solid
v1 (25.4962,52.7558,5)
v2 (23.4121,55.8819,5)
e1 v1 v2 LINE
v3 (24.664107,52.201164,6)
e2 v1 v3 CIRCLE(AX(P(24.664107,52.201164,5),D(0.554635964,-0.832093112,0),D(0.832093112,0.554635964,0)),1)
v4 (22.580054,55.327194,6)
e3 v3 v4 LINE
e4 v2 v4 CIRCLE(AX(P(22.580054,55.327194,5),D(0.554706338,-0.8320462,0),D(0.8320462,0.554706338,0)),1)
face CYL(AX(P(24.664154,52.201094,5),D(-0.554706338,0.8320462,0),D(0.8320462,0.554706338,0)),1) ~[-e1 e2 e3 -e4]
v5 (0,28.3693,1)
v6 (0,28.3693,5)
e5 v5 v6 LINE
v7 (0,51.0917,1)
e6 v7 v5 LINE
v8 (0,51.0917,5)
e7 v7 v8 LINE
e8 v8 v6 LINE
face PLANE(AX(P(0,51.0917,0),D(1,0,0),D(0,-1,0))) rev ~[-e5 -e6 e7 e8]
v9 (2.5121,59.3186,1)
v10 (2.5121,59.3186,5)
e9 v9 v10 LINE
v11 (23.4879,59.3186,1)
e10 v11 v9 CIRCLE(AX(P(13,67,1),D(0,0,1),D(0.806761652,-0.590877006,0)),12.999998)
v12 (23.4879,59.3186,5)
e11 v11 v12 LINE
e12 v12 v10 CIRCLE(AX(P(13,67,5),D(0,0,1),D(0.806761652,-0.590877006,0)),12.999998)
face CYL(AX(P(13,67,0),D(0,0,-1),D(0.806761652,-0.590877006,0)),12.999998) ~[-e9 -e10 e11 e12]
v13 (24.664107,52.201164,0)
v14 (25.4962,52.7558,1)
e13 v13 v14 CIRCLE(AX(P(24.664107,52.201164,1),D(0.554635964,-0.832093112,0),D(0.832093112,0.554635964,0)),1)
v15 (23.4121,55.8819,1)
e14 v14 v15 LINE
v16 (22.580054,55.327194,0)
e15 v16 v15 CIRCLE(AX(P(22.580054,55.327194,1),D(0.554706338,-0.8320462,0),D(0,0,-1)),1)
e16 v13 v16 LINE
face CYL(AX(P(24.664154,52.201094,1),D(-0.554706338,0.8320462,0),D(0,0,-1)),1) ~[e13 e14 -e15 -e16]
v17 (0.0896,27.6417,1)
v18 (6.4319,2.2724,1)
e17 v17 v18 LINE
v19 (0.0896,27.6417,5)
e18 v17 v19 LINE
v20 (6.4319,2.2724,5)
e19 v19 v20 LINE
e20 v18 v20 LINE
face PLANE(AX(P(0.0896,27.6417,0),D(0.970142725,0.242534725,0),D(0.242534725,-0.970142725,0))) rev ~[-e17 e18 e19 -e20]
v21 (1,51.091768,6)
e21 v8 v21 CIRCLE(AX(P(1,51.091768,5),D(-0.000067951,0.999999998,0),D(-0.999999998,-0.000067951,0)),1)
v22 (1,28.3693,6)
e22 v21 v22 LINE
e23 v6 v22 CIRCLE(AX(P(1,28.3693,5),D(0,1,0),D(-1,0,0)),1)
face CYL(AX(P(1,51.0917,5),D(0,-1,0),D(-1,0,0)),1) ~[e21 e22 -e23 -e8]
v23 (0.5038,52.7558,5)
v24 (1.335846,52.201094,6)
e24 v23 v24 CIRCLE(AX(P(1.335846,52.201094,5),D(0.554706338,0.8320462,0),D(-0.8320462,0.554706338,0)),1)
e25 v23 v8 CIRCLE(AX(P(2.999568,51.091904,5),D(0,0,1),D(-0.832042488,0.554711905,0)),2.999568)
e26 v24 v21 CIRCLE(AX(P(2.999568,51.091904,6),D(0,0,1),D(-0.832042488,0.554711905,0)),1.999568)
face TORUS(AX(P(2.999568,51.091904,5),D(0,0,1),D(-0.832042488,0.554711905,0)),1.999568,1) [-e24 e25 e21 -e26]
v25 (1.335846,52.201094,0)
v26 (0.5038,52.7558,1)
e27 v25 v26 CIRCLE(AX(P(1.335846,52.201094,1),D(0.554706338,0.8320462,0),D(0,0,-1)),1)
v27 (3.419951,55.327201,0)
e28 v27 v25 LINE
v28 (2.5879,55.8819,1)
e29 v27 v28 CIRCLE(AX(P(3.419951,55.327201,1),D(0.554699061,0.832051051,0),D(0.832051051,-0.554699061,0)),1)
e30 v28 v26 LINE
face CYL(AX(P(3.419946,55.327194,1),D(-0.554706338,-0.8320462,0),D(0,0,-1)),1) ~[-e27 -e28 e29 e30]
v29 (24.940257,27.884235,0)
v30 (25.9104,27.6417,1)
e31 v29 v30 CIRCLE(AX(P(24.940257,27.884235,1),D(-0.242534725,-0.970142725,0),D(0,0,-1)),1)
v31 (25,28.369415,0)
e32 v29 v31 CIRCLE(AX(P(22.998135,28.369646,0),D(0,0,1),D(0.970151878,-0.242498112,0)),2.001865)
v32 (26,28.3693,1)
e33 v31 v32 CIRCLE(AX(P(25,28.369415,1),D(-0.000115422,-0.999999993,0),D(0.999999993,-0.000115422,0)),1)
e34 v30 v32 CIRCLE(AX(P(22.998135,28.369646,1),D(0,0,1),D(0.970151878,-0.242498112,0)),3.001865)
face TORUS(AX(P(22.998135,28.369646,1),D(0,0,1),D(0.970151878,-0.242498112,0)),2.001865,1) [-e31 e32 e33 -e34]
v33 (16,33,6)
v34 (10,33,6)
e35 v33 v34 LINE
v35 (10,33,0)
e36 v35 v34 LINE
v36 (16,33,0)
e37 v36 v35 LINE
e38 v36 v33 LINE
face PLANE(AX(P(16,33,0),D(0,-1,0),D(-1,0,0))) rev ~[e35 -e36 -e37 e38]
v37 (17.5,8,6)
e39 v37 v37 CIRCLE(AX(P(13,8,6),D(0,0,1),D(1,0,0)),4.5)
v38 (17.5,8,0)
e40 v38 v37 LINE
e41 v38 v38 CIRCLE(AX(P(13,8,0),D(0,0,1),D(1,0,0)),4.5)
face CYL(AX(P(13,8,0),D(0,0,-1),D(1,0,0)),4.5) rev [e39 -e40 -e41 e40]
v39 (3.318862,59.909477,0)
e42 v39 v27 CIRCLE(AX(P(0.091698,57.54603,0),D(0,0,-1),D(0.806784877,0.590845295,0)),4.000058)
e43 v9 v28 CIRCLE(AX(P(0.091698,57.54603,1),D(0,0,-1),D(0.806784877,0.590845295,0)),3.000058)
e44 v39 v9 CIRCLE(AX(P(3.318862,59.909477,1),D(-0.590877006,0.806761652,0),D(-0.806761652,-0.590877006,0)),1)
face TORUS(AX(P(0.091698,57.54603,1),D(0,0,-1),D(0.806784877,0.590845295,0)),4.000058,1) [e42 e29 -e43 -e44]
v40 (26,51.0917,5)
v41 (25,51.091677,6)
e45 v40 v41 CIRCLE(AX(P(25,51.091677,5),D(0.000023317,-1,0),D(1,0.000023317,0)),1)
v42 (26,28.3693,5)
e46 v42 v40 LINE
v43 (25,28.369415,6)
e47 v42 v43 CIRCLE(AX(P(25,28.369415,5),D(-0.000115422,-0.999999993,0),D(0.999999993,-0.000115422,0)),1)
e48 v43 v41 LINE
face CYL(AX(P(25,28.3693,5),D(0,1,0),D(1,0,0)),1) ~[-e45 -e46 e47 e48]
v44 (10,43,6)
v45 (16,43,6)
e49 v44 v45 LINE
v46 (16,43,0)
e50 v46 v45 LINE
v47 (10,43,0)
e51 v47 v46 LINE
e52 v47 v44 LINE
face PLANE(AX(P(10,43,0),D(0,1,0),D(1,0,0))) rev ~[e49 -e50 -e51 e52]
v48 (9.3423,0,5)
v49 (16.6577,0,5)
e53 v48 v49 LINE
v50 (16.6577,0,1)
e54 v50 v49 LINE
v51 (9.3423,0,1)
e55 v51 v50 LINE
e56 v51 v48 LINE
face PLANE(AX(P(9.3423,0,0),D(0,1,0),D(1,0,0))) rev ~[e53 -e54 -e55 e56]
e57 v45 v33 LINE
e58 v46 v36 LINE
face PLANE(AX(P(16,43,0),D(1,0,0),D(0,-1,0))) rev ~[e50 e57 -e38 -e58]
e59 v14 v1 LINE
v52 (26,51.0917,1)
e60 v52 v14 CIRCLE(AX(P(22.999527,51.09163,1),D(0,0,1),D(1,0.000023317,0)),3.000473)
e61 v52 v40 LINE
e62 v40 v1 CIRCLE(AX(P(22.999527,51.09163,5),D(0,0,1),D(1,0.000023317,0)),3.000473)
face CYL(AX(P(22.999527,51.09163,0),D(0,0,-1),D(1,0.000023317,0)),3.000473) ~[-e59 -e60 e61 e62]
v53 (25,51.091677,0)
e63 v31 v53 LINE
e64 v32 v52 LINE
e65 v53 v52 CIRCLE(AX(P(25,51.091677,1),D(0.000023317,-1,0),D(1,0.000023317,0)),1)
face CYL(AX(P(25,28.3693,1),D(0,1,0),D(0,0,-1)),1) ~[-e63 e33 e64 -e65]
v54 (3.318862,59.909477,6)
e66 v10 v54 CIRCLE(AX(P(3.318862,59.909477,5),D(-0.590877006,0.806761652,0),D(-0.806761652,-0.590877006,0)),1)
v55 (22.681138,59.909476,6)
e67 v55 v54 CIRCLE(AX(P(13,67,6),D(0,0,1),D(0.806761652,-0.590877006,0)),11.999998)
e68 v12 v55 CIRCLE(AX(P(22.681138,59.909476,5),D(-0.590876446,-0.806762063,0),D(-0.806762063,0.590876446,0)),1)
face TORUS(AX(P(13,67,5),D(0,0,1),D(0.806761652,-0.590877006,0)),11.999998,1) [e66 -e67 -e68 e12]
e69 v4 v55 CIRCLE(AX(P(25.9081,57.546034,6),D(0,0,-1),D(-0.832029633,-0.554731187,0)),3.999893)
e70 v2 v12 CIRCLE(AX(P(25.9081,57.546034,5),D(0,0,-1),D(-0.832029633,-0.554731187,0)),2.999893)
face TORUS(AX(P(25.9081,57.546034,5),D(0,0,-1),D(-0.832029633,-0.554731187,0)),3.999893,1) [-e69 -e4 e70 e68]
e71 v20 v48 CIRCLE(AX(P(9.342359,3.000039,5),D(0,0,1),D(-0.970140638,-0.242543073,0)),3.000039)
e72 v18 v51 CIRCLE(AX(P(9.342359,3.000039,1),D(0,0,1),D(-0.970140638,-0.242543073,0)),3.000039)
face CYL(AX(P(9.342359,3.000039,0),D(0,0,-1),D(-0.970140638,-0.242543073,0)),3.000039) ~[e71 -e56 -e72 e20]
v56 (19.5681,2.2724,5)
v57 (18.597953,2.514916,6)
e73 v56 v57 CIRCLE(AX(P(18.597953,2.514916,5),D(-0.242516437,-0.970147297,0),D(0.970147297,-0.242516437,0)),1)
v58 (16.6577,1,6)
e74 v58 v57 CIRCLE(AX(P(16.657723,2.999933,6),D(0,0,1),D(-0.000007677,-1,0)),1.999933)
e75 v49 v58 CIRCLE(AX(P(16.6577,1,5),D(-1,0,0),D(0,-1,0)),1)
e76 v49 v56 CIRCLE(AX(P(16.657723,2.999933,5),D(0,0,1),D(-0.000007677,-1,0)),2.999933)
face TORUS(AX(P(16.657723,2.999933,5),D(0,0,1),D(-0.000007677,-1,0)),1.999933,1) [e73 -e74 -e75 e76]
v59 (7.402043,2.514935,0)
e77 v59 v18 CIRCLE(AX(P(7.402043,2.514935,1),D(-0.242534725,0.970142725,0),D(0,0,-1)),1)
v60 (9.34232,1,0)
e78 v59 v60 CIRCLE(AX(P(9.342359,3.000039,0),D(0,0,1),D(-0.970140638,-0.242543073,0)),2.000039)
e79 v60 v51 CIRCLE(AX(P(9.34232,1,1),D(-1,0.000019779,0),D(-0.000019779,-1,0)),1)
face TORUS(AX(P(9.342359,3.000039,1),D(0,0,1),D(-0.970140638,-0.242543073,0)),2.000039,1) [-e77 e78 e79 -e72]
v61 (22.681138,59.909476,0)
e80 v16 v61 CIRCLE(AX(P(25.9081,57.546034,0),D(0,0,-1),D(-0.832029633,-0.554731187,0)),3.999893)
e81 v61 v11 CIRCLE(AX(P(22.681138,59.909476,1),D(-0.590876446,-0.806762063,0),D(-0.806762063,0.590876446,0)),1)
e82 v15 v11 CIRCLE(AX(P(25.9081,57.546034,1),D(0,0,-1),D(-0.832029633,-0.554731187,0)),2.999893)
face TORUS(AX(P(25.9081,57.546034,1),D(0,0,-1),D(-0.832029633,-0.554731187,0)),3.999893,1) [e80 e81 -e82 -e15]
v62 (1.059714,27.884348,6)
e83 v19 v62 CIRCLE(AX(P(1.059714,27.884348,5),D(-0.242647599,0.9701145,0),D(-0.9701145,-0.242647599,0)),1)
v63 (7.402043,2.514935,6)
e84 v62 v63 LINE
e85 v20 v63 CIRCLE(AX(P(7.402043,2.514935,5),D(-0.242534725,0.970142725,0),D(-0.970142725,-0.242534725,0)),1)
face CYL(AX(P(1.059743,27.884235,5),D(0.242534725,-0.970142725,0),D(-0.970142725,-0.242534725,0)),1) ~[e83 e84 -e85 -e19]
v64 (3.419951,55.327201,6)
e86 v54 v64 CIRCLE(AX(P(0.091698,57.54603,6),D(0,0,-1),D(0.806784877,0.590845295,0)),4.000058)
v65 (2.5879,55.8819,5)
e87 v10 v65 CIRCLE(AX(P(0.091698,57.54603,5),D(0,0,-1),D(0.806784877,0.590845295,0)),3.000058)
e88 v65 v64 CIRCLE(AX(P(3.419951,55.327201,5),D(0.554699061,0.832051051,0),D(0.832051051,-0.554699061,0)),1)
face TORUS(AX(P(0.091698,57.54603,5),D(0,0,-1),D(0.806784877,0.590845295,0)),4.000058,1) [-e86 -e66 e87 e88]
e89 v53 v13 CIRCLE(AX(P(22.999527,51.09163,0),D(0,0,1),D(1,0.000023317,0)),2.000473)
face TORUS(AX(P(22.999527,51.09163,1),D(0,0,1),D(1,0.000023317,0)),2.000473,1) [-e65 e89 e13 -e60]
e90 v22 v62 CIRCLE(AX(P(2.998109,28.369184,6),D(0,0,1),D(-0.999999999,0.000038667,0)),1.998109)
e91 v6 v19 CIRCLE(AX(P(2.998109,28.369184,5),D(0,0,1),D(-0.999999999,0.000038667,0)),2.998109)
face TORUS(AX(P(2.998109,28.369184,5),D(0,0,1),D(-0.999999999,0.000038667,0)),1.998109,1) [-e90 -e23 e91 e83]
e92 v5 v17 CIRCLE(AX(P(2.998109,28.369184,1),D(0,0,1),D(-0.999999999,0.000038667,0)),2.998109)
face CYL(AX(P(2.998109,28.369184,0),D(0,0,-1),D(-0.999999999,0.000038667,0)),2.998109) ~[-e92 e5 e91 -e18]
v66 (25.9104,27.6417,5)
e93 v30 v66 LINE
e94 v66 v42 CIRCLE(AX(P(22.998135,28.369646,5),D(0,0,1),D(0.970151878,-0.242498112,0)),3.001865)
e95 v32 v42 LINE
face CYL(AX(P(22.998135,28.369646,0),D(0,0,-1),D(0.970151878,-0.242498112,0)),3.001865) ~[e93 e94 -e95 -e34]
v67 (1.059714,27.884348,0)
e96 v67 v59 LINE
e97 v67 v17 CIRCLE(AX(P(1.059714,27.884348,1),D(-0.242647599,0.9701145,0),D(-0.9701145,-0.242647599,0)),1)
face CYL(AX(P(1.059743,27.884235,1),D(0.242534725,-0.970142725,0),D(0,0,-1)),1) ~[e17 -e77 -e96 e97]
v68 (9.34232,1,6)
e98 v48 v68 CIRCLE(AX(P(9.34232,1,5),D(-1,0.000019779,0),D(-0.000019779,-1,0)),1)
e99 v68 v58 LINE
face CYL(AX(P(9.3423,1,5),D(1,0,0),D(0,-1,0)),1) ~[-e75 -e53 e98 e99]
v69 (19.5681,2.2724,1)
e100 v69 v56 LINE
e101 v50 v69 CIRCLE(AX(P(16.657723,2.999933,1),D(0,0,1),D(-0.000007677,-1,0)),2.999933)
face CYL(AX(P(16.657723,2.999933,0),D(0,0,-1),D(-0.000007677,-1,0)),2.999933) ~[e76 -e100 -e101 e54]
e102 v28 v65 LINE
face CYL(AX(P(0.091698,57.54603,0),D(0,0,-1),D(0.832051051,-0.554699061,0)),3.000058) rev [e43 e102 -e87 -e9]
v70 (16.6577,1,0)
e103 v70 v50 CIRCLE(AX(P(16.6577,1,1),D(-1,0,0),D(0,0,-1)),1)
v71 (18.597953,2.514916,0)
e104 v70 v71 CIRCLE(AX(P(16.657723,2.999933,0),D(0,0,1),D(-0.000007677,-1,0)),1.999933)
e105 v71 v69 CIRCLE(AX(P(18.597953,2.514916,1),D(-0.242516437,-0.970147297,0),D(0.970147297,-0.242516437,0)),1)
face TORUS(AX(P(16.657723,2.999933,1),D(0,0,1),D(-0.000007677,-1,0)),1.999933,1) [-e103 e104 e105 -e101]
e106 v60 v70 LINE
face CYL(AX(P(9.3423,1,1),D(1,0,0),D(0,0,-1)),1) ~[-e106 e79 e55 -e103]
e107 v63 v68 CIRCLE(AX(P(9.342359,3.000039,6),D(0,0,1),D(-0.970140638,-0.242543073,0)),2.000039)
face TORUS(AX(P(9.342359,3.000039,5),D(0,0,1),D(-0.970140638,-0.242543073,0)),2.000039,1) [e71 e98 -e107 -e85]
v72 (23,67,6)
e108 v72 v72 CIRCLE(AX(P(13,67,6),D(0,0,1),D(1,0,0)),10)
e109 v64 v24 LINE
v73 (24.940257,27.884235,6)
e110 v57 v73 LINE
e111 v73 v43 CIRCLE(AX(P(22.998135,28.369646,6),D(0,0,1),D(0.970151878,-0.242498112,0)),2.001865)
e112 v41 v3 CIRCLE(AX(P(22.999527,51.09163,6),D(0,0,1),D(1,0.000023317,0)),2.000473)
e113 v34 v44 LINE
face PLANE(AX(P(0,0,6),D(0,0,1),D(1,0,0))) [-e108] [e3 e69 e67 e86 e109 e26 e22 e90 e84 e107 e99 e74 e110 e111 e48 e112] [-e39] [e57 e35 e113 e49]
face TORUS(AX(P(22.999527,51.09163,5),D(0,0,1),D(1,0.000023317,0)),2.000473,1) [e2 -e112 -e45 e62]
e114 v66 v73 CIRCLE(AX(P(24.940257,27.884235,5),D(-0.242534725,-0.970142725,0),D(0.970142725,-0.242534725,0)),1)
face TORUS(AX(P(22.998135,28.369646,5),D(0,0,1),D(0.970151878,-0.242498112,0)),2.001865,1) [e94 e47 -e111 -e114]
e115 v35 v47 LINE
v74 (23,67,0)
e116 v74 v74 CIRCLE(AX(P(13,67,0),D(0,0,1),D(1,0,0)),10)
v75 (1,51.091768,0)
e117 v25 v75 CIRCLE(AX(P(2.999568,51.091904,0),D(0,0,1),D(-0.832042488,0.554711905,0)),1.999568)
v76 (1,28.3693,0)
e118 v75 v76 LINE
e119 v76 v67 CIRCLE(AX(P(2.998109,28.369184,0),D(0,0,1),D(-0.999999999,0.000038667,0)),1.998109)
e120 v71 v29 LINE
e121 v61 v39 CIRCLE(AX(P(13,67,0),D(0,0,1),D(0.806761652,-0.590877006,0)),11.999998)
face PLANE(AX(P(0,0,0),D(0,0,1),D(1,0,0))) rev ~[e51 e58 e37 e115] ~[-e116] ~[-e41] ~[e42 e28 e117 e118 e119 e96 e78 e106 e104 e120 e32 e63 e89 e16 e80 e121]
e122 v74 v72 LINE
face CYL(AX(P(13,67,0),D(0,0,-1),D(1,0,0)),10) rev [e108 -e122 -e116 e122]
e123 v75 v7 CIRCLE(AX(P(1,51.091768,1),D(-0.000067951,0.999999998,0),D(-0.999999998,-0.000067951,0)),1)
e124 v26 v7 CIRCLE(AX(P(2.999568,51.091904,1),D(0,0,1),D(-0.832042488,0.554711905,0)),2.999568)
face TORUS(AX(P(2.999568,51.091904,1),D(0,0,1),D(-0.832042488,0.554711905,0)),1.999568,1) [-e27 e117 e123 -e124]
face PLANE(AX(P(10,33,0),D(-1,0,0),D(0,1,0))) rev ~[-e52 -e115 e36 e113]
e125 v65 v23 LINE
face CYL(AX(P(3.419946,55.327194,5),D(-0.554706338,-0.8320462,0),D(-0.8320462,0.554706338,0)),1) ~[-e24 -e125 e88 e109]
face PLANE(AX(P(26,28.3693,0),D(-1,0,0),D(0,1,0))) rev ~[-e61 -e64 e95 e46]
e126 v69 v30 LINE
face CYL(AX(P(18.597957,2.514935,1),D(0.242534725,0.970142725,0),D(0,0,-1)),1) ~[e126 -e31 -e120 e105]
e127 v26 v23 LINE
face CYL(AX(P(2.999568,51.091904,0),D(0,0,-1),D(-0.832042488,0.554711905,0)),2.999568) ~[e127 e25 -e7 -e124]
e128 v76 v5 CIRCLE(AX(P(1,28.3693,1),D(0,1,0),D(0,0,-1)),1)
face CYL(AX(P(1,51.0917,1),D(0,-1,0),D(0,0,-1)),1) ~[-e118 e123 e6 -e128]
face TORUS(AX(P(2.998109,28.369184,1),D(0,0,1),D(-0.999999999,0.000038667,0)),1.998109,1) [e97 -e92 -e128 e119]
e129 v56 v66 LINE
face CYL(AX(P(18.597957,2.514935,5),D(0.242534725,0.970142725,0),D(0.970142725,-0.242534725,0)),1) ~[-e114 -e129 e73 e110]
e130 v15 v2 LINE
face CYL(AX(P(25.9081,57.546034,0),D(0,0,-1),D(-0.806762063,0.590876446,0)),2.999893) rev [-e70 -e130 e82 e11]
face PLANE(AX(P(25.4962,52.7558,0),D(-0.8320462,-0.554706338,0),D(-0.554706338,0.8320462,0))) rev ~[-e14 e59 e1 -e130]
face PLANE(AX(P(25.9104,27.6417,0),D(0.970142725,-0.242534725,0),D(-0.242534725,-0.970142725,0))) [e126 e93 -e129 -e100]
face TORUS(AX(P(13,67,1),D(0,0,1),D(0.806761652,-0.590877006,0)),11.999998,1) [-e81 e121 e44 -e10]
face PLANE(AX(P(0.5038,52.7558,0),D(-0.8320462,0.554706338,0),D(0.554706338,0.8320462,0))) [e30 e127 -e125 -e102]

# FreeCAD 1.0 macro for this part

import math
import FreeCAD as App
import Part
import Sketcher

V = App.Vector


def edges_at(feature, points):
    """Names of the edges that pass closest to the given points."""
    edges = feature.Shape.Edges
    near = lambda p: min(range(len(edges)), key=lambda i: edges[i].distToShape(Part.Vertex(*p))[0])
    return sorted({f"Edge{near(p) + 1}" for p in points})


def add_polygon(sketch, points):
    """Adds a closed chain of lines whose ends are joined by coincident constraints."""
    first, n = sketch.GeometryCount, len(points)
    for a, b in zip(points, points[1:] + points[:1]):
        sketch.addGeometry(Part.LineSegment(App.Vector(*a, 0), App.Vector(*b, 0)), False)
    for i in range(n):
        sketch.addConstraint(Sketcher.Constraint("Coincident", first + i, 2, first + (i + 1) % n, 1))

doc = App.newDocument("Part")
body = doc.addObject("PartDesign::Body", "Body")

sketch1 = doc.addObject("Sketcher::SketchObject", "Sketch")
body.addObject(sketch1)
sketch1.AttachmentSupport = (doc.XY_Plane, [""])
sketch1.MapMode = "FlatFace"
sketch1.addGeometry(Part.ArcOfCircle(Part.Circle(V(9.3423, 3, 0), V(0, 0, 1), 2.999972), math.radians(-165.963757), math.radians(-90)), False)
sketch1.addGeometry(Part.LineSegment(V(9.3423, 0, 0), V(16.6577, 0, 0)), False)
sketch1.addGeometry(Part.ArcOfCircle(Part.Circle(V(16.6577, 3, 0), V(0, 0, 1), 3), math.radians(-90), math.radians(-14.036243)), False)
sketch1.addGeometry(Part.LineSegment(V(19.5681, 2.2724, 0), V(25.9104, 27.6417, 0)), False)
sketch1.addGeometry(Part.ArcOfCircle(Part.Circle(V(22.998135, 28.369646, 0), V(0, 0, 1), 3.001865), math.radians(-14.034028), math.radians(-0.006613)), False)
sketch1.addGeometry(Part.LineSegment(V(26, 28.3693, 0), V(26, 51.0917, 0)), False)
sketch1.addGeometry(Part.ArcOfCircle(Part.Circle(V(23, 51.0917, 0), V(0, 0, 1), 3), math.radians(0), math.radians(33.689538)), False)
sketch1.addGeometry(Part.LineSegment(V(25.4962, 52.7558, 0), V(23.4121, 55.8819, 0)), False)
sketch1.addGeometry(Part.ArcOfCircle(Part.Circle(V(25.9082, 57.546, 0), V(0, 0, 1), 2.999994), math.radians(143.78138), math.radians(213.690597)), False)
sketch1.addGeometry(Part.ArcOfCircle(Part.Circle(V(13, 67, 0), V(0, 0, 1), 12.999998), math.radians(-36.219268), math.radians(216.219268)), False)
sketch1.addGeometry(Part.ArcOfCircle(Part.Circle(V(0.0918, 57.546, 0), V(0, 0, 1), 2.999957), math.radians(-33.690597), math.radians(36.21862)), False)
sketch1.addGeometry(Part.LineSegment(V(2.5879, 55.8819, 0), V(0.5038, 52.7558, 0)), False)
sketch1.addGeometry(Part.ArcOfCircle(Part.Circle(V(3, 51.0917, 0), V(0, 0, 1), 3.000041), math.radians(146.310462), math.radians(180)), False)
sketch1.addGeometry(Part.LineSegment(V(0, 51.0917, 0), V(0, 28.3693, 0)), False)
sketch1.addGeometry(Part.ArcOfCircle(Part.Circle(V(2.998109, 28.369184, 0), V(0, 0, 1), 2.998109), math.radians(179.997785), math.radians(194.042857)), False)
sketch1.addGeometry(Part.LineSegment(V(0.0896, 27.6417, 0), V(6.4319, 2.2724, 0)), False)
sketch1.addGeometry(Part.Circle(V(13, 8, 0), V(0, 0, 1), 4.5), False)
add_polygon(sketch1, [(10, 33), (10, 43), (16, 43), (16, 33)])
sketch1.addGeometry(Part.Circle(V(13, 67, 0), V(0, 0, 1), 10), False)
sketch1.addConstraint([
    Sketcher.Constraint("Coincident", 0, 2, 1, 1),
    Sketcher.Constraint("Coincident", 1, 2, 2, 1),
    Sketcher.Constraint("Coincident", 2, 2, 3, 1),
    Sketcher.Constraint("Coincident", 3, 2, 4, 1),
    Sketcher.Constraint("Coincident", 4, 2, 5, 1),
    Sketcher.Constraint("Coincident", 5, 2, 6, 1),
    Sketcher.Constraint("Coincident", 6, 2, 7, 1),
    Sketcher.Constraint("Coincident", 7, 2, 8, 2),
    Sketcher.Constraint("Coincident", 8, 1, 9, 1),
    Sketcher.Constraint("Coincident", 9, 2, 10, 2),
    Sketcher.Constraint("Coincident", 10, 1, 11, 1),
    Sketcher.Constraint("Coincident", 11, 2, 12, 1),
    Sketcher.Constraint("Coincident", 12, 2, 13, 1),
    Sketcher.Constraint("Coincident", 13, 2, 14, 1),
    Sketcher.Constraint("Coincident", 14, 2, 15, 1),
    Sketcher.Constraint("Coincident", 15, 2, 0, 1),
    Sketcher.Constraint("Horizontal", 1),
    Sketcher.Constraint("Vertical", 5),
    Sketcher.Constraint("Vertical", 13),
    Sketcher.Constraint("Vertical", 17),
    Sketcher.Constraint("Horizontal", 18),
    Sketcher.Constraint("Vertical", 19),
    Sketcher.Constraint("Horizontal", 20),
    Sketcher.Constraint("Coincident", 21, 3, 9, 3),
    Sketcher.Constraint("PointOnObject", 0, 2, -1),
    Sketcher.Constraint("PointOnObject", 12, 2, -2),
    Sketcher.Constraint("Diameter", 21, 20.0),
    Sketcher.Constraint("Radius", 0, 3.0),
    Sketcher.Constraint("Radius", 2, 3.0),
    Sketcher.Constraint("Radius", 6, 3.0),
    Sketcher.Constraint("Radius", 8, 3.0),
    Sketcher.Constraint("Radius", 10, 3.0),
    Sketcher.Constraint("Radius", 12, 3.0),
    Sketcher.Constraint("Diameter", 16, 9.0),
    Sketcher.Constraint("Radius", 9, 13.0),
    Sketcher.Constraint("DistanceX", 12, 3, 6, 3, 20.0),
    Sketcher.Constraint("DistanceX", 14, 3, 4, 3, 20.0),
    Sketcher.Constraint("DistanceX", 18, 1, 18, 2, 6.0),
    Sketcher.Constraint("DistanceY", 17, 1, 17, 2, 10.0),
    Sketcher.Constraint("DistanceX", -1, 1, 9, 3, 13.0),
    Sketcher.Constraint("DistanceY", -1, 1, 9, 3, 67.0),
    Sketcher.Constraint("DistanceX", -1, 1, 16, 3, 13.0),
    Sketcher.Constraint("DistanceY", -1, 1, 16, 3, 8.0),
    Sketcher.Constraint("DistanceX", -1, 1, 17, 2, 10.0),
    Sketcher.Constraint("DistanceY", -1, 1, 17, 2, 43.0),
    Sketcher.Constraint("Radius", 14, 2.998),
    Sketcher.Constraint("DistanceY", 14, 3, 4, 2, 0.0),
    Sketcher.Constraint("DistanceY", 14, 3, 13, 2, 0.0),
    Sketcher.Constraint("Distance", 3, 26.15),
    Sketcher.Constraint("Distance", 15, 26.15),
    Sketcher.Constraint("DistanceX", 4, 3, 8, 3, 2.91),
    Sketcher.Constraint("DistanceY", 3, 2, 6, 3, 23.45),
    Sketcher.Constraint("DistanceY", 14, 2, 12, 2, 23.45),
    Sketcher.Constraint("DistanceX", 1, 1, 1, 2, 7.3154),
    Sketcher.Constraint("DistanceY", 5, 1, 5, 2, 22.7224),
    Sketcher.Constraint("DistanceY", 13, 2, 13, 1, 22.7224),
    Sketcher.Constraint("DistanceY", -1, 1, 10, 3, 57.546),
    Sketcher.Constraint("DistanceX", -1, 1, 7, 2, 23.412),
    Sketcher.Constraint("DistanceX", -1, 1, 8, 1, 23.488),
    Sketcher.Constraint("DistanceX", -1, 1, 9, 2, 2.512),
    Sketcher.Constraint("DistanceX", -1, 1, 10, 1, 2.588),
    Sketcher.Constraint("DistanceX", -1, 1, 15, 2, 6.432),
    Sketcher.Constraint("DistanceY", 4, 3, 6, 3, 22.722),
    Sketcher.Constraint("DistanceX", 0, 3, 8, 3, 16.566),
    Sketcher.Constraint("DistanceY", 4, 3, 12, 3, 22.722),
    Sketcher.Constraint("DistanceY", 5, 2, 6, 2, 1.664),
    Sketcher.Constraint("DistanceY", 6, 3, 6, 2, 1.664),
    Sketcher.Constraint("DistanceY", 12, 3, 11, 2, 1.664),
    Sketcher.Constraint("DistanceX", -1, 1, 2, 3, 16.6577),
    Sketcher.Constraint("DistanceX", -1, 1, 0, 2, 9.3423),
])
pad1 = doc.addObject("PartDesign::Pad", "Pad")
body.addObject(pad1)
pad1.Profile = sketch1
pad1.Length = 6
doc.recompute()

fillet = doc.addObject("PartDesign::Fillet", "Fillet")
body.addObject(fillet)
fillet.Base = (pad1, edges_at(pad1, [
    (25.871, 51.961, 6),
    (24.454, 54.319, 6),
    (22.909, 57.612, 6),
    (13, 80, 6),
    (3.091, 57.612, 6),
    (1.546, 54.319, 6),
    (0.129, 51.961, 6),
    (0, 39.73, 6),
    (0.022, 28.003, 6),
    (3.261, 14.957, 6),
    (7.496, 0.635, 6),
    (13, 0, 6),
    (18.504, 0.635, 6),
    (22.739, 14.957, 6),
    (25.977, 28.003, 6),
    (26, 39.73, 6),
]))
fillet.Radius = 1
doc.recompute()

fillet2 = doc.addObject("PartDesign::Fillet", "Fillet001")
body.addObject(fillet2)
fillet2.Base = (fillet, edges_at(fillet, [
    (25.871, 51.961, 0),
    (24.454, 54.319, 0),
    (22.909, 57.612, 0),
    (13, 80, 0),
    (3.091, 57.612, 0),
    (1.546, 54.319, 0),
    (0.129, 51.961, 0),
    (0, 39.73, 0),
    (0.022, 28.003, 0),
    (3.261, 14.957, 0),
    (7.496, 0.635, 0),
    (13, 0, 0),
    (18.504, 0.635, 0),
    (22.739, 14.957, 0),
    (25.977, 28.003, 0),
    (26, 39.73, 0),
]))
fillet2.Radius = 1

doc.recompute()
